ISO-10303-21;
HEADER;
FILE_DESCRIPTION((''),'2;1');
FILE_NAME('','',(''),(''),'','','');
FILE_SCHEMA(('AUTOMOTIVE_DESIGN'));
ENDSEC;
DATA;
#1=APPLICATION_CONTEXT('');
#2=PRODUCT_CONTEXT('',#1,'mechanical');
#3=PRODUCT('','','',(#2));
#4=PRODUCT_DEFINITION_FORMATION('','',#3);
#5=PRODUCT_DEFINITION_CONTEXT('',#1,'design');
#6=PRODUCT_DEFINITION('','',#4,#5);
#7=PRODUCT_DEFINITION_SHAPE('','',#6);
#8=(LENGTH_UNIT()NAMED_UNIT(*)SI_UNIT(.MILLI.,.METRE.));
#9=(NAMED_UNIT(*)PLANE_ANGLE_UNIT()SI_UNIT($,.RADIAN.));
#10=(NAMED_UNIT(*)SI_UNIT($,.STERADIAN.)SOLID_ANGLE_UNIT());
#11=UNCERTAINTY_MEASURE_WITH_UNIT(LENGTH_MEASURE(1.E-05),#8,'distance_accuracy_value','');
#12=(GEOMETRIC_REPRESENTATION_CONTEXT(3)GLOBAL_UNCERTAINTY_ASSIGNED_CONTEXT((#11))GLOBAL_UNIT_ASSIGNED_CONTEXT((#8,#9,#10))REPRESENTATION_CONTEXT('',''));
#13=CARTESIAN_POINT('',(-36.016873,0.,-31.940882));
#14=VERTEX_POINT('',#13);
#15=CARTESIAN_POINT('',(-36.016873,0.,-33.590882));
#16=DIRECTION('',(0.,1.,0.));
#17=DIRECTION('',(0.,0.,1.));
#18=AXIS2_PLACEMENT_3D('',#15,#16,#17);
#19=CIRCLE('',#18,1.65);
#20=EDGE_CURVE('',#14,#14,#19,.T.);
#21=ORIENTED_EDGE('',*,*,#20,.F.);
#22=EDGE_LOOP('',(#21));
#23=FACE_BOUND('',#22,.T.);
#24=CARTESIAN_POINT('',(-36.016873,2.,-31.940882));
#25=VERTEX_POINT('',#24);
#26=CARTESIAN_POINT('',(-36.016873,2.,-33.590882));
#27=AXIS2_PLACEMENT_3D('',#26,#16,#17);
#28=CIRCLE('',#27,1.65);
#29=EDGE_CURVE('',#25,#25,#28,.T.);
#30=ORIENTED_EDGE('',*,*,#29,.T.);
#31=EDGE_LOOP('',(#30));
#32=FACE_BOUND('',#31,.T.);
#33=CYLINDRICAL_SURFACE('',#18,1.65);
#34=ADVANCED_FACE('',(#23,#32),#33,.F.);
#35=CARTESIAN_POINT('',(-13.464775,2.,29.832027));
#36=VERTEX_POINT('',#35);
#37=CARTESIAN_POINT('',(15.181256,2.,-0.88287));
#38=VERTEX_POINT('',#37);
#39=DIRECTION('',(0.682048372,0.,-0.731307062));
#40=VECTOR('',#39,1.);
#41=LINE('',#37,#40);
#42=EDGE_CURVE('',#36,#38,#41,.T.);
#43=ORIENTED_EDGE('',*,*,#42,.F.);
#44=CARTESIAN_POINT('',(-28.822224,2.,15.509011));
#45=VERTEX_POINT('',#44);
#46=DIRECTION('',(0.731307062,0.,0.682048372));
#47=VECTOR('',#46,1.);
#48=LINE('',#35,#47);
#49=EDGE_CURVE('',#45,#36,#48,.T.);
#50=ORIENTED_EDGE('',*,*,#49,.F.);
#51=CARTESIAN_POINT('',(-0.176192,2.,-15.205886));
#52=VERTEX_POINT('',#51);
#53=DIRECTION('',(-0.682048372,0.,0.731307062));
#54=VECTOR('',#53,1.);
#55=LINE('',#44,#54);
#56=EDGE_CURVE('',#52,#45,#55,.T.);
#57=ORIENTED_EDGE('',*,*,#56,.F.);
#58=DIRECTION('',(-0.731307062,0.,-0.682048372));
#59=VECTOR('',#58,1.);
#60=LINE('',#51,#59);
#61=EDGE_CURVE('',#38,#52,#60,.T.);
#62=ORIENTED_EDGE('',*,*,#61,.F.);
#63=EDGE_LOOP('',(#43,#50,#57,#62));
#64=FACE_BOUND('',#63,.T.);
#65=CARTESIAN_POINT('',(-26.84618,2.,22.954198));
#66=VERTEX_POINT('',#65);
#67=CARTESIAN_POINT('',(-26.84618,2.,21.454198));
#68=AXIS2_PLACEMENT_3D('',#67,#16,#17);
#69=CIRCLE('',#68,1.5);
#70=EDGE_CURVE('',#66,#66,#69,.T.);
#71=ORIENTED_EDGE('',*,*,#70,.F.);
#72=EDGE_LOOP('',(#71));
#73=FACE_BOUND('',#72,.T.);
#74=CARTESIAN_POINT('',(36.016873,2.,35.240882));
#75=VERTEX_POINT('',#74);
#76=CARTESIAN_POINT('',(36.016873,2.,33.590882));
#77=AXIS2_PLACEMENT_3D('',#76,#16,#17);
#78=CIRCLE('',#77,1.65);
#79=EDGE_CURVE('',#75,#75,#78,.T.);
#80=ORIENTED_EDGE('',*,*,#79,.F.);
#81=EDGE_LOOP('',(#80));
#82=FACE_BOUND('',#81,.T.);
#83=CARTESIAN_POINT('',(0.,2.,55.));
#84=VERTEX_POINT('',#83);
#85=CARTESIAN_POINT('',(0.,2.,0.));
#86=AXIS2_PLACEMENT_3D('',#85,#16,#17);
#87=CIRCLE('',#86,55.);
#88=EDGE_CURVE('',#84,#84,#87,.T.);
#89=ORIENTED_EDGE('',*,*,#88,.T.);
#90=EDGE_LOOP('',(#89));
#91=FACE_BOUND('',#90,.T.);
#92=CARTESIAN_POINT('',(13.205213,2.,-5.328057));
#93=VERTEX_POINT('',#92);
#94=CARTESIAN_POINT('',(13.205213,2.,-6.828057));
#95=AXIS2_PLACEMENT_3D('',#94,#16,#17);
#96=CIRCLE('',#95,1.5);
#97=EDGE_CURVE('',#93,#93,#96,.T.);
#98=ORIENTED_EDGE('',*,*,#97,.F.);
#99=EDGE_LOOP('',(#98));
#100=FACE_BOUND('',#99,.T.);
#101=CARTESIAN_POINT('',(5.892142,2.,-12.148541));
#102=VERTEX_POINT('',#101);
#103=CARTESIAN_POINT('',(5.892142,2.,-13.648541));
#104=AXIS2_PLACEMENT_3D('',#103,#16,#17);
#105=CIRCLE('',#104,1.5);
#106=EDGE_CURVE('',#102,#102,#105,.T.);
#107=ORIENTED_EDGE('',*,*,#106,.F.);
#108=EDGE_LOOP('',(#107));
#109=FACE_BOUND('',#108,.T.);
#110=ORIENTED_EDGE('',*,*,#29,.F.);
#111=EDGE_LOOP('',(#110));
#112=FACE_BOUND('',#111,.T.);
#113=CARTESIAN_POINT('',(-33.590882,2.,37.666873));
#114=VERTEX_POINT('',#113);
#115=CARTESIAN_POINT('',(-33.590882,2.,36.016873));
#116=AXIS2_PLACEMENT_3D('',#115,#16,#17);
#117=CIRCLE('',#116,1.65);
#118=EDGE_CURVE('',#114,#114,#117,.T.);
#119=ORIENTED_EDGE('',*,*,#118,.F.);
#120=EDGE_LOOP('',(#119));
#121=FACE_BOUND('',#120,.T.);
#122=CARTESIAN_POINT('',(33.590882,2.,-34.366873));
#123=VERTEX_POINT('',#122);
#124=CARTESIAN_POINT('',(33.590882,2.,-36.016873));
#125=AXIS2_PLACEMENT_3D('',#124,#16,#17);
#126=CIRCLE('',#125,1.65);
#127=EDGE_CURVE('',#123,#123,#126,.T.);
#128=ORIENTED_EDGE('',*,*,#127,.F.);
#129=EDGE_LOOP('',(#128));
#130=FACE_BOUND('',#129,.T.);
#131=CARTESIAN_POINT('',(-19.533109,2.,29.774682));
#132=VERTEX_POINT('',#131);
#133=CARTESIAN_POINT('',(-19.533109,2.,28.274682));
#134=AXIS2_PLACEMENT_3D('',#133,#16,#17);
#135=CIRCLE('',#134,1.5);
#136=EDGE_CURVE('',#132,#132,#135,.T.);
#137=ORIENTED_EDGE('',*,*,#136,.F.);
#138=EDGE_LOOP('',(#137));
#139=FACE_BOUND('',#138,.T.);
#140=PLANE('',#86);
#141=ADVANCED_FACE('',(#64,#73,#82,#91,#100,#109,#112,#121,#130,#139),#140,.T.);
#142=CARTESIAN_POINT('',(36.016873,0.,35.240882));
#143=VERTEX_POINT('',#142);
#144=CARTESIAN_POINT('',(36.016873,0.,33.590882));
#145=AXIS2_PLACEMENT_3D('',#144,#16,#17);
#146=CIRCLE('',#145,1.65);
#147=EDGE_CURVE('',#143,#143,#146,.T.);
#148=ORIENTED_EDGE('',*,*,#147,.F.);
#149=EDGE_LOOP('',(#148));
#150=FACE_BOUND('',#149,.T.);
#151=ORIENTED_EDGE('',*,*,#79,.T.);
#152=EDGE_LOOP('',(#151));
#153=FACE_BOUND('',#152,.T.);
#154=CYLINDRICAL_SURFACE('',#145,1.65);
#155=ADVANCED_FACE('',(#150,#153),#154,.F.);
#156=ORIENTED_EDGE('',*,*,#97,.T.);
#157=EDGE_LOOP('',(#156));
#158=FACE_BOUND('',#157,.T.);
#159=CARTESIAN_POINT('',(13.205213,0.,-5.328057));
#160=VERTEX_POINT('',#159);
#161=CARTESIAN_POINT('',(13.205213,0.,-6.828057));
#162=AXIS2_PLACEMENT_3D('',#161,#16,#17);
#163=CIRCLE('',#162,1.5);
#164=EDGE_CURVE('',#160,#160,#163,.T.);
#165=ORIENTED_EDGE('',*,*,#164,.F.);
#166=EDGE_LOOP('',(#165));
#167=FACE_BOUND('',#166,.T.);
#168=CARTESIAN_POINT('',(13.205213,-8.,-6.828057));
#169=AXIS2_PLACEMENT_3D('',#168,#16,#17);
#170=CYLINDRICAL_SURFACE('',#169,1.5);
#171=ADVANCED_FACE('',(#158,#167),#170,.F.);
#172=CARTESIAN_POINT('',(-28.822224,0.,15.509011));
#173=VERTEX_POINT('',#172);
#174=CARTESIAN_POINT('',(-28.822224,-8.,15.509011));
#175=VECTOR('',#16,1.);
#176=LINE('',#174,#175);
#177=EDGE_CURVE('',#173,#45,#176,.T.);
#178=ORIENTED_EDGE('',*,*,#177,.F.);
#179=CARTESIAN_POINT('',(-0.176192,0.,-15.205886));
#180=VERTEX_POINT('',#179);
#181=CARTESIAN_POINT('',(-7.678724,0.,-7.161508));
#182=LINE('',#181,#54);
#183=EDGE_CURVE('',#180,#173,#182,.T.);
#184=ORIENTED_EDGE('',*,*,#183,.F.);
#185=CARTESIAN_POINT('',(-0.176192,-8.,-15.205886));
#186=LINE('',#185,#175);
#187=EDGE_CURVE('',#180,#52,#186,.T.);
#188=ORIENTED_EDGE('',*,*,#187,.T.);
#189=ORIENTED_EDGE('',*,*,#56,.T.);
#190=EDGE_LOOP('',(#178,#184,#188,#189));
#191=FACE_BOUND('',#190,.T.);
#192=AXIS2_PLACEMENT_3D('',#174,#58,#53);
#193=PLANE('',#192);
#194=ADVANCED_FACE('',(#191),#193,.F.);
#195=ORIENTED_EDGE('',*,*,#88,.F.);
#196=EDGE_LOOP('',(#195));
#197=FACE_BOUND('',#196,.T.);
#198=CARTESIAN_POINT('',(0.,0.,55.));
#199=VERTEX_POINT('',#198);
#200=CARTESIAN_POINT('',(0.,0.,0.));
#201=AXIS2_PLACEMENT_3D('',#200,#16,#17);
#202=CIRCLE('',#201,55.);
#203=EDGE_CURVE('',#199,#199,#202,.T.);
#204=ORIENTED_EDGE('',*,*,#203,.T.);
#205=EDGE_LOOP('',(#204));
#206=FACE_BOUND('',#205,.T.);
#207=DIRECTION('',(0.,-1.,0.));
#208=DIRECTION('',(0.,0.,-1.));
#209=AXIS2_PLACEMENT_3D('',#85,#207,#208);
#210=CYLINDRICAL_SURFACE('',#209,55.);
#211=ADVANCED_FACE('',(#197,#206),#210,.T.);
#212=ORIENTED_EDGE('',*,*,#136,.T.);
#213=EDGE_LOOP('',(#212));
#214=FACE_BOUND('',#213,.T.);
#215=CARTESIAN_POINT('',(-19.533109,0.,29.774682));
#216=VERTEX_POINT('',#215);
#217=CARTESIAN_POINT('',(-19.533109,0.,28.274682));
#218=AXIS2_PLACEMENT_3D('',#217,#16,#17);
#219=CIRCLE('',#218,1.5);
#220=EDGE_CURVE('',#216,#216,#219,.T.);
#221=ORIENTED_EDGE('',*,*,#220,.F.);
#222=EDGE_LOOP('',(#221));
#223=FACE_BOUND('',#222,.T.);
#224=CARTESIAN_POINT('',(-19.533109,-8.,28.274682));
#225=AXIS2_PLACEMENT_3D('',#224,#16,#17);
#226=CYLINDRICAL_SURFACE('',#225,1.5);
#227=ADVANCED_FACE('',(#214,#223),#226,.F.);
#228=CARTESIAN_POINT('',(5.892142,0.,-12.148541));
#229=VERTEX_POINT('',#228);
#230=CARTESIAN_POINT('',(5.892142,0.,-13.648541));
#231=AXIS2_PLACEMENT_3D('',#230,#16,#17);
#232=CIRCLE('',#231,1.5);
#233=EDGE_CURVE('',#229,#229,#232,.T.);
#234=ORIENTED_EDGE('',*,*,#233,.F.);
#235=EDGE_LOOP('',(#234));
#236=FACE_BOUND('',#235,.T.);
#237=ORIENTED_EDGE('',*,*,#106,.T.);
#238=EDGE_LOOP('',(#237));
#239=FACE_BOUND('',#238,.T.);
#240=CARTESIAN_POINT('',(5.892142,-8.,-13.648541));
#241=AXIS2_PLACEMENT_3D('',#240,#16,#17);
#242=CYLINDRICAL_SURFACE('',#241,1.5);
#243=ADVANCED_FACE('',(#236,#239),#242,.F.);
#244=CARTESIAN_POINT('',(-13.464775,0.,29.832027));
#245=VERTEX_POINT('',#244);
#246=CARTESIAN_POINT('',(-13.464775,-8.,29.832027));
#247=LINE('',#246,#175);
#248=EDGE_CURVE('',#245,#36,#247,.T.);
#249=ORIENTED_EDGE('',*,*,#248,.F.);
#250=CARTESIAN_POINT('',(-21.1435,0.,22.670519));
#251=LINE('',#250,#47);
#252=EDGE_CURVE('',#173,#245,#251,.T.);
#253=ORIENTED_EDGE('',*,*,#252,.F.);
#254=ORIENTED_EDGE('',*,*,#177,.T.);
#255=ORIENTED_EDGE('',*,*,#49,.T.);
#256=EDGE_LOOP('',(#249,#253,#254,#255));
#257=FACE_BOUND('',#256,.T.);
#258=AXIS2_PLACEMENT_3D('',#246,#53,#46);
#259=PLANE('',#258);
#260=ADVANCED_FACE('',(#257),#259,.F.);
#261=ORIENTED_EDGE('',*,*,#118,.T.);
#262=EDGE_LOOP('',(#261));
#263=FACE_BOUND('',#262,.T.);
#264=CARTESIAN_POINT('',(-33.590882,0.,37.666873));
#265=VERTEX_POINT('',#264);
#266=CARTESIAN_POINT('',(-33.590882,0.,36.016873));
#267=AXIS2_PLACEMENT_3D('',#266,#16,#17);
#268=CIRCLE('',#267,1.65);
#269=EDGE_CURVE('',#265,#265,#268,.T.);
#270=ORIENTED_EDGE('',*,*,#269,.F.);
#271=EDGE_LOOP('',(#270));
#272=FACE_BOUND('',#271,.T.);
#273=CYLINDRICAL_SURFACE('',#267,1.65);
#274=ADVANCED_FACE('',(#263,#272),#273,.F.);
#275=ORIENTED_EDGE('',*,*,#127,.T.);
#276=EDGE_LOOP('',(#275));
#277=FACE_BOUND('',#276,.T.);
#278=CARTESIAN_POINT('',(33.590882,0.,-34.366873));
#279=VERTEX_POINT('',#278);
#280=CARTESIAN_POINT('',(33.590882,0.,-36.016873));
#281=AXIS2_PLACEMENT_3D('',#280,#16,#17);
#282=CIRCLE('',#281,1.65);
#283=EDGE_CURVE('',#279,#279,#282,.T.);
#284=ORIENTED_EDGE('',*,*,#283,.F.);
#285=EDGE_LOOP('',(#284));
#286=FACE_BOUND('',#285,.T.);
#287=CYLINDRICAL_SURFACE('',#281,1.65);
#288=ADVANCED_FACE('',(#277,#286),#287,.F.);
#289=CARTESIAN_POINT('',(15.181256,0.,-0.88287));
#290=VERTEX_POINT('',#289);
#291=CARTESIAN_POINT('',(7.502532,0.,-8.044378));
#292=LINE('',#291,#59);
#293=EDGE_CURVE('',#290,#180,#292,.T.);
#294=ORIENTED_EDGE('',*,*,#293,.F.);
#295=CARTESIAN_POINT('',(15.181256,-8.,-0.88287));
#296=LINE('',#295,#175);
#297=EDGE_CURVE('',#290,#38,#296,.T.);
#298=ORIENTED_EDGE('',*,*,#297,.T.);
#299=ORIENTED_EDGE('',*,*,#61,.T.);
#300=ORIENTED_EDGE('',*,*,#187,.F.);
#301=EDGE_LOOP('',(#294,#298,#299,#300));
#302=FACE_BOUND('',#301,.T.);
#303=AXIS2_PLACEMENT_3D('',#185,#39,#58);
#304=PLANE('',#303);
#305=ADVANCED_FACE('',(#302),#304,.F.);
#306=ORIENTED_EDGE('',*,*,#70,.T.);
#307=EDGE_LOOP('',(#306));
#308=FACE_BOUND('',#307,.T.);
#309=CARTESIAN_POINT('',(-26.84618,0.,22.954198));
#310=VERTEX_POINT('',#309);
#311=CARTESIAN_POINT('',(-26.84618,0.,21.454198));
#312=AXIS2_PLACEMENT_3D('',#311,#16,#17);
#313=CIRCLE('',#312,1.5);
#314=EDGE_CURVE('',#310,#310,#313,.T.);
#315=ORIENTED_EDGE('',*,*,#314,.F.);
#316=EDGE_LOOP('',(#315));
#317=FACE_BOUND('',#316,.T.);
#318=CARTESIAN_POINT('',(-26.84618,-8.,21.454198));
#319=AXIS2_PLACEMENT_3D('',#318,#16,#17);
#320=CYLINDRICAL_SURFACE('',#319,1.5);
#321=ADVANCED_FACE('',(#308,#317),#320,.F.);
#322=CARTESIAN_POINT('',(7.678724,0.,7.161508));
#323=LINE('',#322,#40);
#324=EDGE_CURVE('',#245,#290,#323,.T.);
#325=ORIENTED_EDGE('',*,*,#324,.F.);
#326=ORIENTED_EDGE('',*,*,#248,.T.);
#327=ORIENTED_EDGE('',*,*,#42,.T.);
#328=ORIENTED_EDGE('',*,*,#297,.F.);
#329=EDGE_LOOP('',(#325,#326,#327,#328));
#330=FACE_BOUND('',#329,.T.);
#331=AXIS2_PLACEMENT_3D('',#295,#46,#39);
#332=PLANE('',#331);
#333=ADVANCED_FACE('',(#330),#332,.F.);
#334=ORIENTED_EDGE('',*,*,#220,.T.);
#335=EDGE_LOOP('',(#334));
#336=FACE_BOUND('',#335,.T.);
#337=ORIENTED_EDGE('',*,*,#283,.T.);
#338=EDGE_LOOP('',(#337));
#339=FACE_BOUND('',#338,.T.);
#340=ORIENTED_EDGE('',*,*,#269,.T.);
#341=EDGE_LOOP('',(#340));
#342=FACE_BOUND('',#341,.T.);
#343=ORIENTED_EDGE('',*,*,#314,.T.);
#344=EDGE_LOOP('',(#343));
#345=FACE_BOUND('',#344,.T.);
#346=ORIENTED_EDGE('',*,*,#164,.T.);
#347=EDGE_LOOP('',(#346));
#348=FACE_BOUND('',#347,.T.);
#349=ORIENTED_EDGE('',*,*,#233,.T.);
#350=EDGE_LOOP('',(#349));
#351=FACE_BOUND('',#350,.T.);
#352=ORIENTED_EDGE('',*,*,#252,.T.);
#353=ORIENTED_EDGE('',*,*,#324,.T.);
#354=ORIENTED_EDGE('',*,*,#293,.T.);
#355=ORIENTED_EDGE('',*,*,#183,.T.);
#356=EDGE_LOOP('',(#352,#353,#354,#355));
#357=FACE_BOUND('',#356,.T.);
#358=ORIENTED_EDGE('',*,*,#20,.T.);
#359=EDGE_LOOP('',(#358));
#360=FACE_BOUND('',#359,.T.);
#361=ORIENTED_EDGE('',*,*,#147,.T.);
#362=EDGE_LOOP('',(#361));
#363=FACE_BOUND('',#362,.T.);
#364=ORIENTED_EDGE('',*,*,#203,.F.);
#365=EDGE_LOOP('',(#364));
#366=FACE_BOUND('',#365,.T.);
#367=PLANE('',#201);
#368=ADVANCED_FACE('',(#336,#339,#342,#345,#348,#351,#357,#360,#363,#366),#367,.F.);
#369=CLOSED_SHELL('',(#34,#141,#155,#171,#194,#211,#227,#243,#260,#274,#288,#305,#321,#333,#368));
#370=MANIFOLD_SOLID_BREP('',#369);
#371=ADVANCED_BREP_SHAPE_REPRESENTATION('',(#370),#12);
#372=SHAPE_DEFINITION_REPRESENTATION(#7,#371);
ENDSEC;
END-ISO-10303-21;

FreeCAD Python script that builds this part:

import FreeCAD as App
import Part
import Sketcher
from FreeCAD import Vector


def add_polygon(sketch, points):
    """Adds a closed chain of lines whose ends are joined by coincident constraints."""
    first, n = sketch.GeometryCount, len(points)
    for a, b in zip(points, points[1:] + points[:1]):
        sketch.addGeometry(Part.LineSegment(App.Vector(*a, 0), App.Vector(*b, 0)), False)
    for i in range(n):
        sketch.addConstraint(Sketcher.Constraint("Coincident", first + i, 2, first + (i + 1) % n, 1))

doc = App.newDocument("Part")
params = doc.addObject("Spreadsheet::Sheet", "Params")
for row, (alias, value) in enumerate([
    ("sketch1_diameter", "110 mm"),
    ("pad1_length", "2 mm"),
    ("sketch2_diameter", "3.3 mm"),
    ("pocket1_length", "2 mm"),
    ("sketch3_diameter", "3.3 mm"),
    ("pocket2_length", "2 mm"),
    ("sketch4_diameter", "3 mm"),
    ("sketch4_length", "42 mm"),
    ("sketch4_length2", "21 mm"),
    ("pocket3_length", "10 mm"),
], start=1):
    params.set(f"A{row}", alias)
    params.set(f"B{row}", "=" + value)
    params.setAlias(f"B{row}", alias)

body = doc.addObject("PartDesign::Body", "Body")

# Sketch on XZ plane
sketch1 = body.newObject("Sketcher::SketchObject", "Sketch")
sketch1.AttachmentSupport = (doc.getObject("XZ_Plane"), [""])
sketch1.MapMode = "FlatFace"
sketch1.addGeometry(Part.Circle(Vector(0, 0, 0), Vector(0, 0, 1), 55), False)
sketch1.addConstraint(Sketcher.Constraint("Coincident", 0, 3, -1, 1))
sketch1.addConstraint(Sketcher.Constraint("Diameter", 0, 110.0))
sketch1.setExpression("Constraints[1]", "Params.sketch1_diameter")
pad1 = body.newObject("PartDesign::Pad", "Pad")
pad1.Profile = sketch1
pad1.setExpression("Length", "Params.pad1_length")
pad1.Reversed = True

# Sketch on XZ plane
sketch2 = body.newObject("Sketcher::SketchObject", "Sketch001")
sketch2.AttachmentSupport = (doc.getObject("XZ_Plane"), [""])
sketch2.MapMode = "FlatFace"
sketch2.AttachmentOffset = App.Placement(Vector(0, 0, -2), App.Rotation())
sketch2.addGeometry(Part.Circle(Vector(36, 33.6, 0), Vector(0, 0, 1), 1.6), False)
sketch2.addConstraint(Sketcher.Constraint("Diameter", 0, 3.3))
sketch2.addConstraint(Sketcher.Constraint("DistanceX", -1, 1, 0, 3, 36.016873))
sketch2.addConstraint(Sketcher.Constraint("DistanceY", -1, 1, 0, 3, 33.590882))
sketch2.setExpression("Constraints[0]", "Params.sketch2_diameter")
pocket1 = body.newObject("PartDesign::Pocket", "Pocket")
pocket1.Profile = sketch2
pocket1.setExpression("Length", "Params.pocket1_length")
pocket1.Reversed = True

# Sketch on XZ plane
sketch3 = body.newObject("Sketcher::SketchObject", "Sketch002")
sketch3.AttachmentSupport = (doc.getObject("XZ_Plane"), [""])
sketch3.MapMode = "FlatFace"
sketch3.AttachmentOffset = App.Placement(Vector(0, 0, -2), App.Rotation())
sketch3.addGeometry(Part.Circle(Vector(-36, -33.6, 0), Vector(0, 0, 1), 1.6), False)
sketch3.addGeometry(Part.Circle(Vector(33.6, -36, 0), Vector(0, 0, 1), 1.6), False)
sketch3.addGeometry(Part.Circle(Vector(-33.6, 36, 0), Vector(0, 0, 1), 1.6), False)
sketch3.addConstraint(Sketcher.Constraint("Equal", 0, 1))
sketch3.addConstraint(Sketcher.Constraint("Equal", 1, 2))
sketch3.addConstraint(Sketcher.Constraint("Symmetric", 1, 3, 2, 3, -1, 1))
sketch3.addConstraint(Sketcher.Constraint("Diameter", 0, 3.3))
sketch3.addConstraint(Sketcher.Constraint("DistanceY", 1, 3, 0, 3, 2.42599))
sketch3.addConstraint(Sketcher.Constraint("DistanceX", 0, 3, 2, 3, 2.42599))
sketch3.addConstraint(Sketcher.Constraint("DistanceX", 0, 3, -1, 1, 36.016873))
sketch3.addConstraint(Sketcher.Constraint("DistanceY", 0, 3, -1, 1, 33.590882))
sketch3.setExpression("Constraints[3]", "Params.sketch3_diameter")
pocket2 = body.newObject("PartDesign::Pocket", "Pocket001")
pocket2.Profile = sketch3
pocket2.setExpression("Length", "Params.pocket2_length")
pocket2.Reversed = True

# Sketch on XZ plane
sketch4 = body.newObject("Sketcher::SketchObject", "Sketch003")
sketch4.AttachmentSupport = (doc.getObject("XZ_Plane"), [""])
sketch4.MapMode = "FlatFace"
sketch4.AttachmentOffset = App.Placement(Vector(0, 0, -2), App.Rotation())
sketch4.addGeometry(Part.Circle(Vector(-26.8, 21.5, 0), Vector(0, 0, 1), 1.5), False)  # 0
sketch4.addGeometry(Part.Circle(Vector(-19.5, 28.3, 0), Vector(0, 0, 1), 1.5), False)  # 1
sketch4.addGeometry(Part.Circle(Vector(5.9, -13.6, 0), Vector(0, 0, 1), 1.5), False)  # 2
sketch4.addGeometry(Part.Circle(Vector(13.2, -6.8, 0), Vector(0, 0, 1), 1.5), False)  # 3
add_polygon(sketch4, [(-0.2, -15.2), (-28.8, 15.5), (-13.5, 29.8), (15.2, -0.9)])  # lines 4-7
sketch4.addConstraint(Sketcher.Constraint("Equal", 0, 1))
sketch4.addConstraint(Sketcher.Constraint("Equal", 1, 2))
sketch4.addConstraint(Sketcher.Constraint("Equal", 2, 3))
sketch4.addConstraint(Sketcher.Constraint("Perpendicular", 4, 5))
sketch4.addConstraint(Sketcher.Constraint("Perpendicular", 5, 6))
sketch4.addConstraint(Sketcher.Constraint("Perpendicular", 6, 7))
sketch4.addConstraint(Sketcher.Constraint("Diameter", 0, 3.0))
sketch4.addConstraint(Sketcher.Constraint("Distance", 4, 42.0))
sketch4.addConstraint(Sketcher.Constraint("Distance", 5, 21.0))
sketch4.addConstraint(Sketcher.Constraint("DistanceY", -1, 1, 0, 3, 21.454198))
sketch4.addConstraint(Sketcher.Constraint("DistanceX", 0, 3, -1, 1, 26.84618))
sketch4.addConstraint(Sketcher.Constraint("DistanceX", 1, 3, -1, 1, 19.533109))
sketch4.addConstraint(Sketcher.Constraint("DistanceY", -1, 1, 1, 3, 28.274682))
sketch4.addConstraint(Sketcher.Constraint("DistanceX", -1, 1, 2, 3, 5.892142))
sketch4.addConstraint(Sketcher.Constraint("DistanceY", 2, 3, -1, 1, 13.648541))
sketch4.addConstraint(Sketcher.Constraint("DistanceY", -1, 1, 4, 2, 15.509011))
sketch4.addConstraint(Sketcher.Constraint("DistanceY", 6, 2, -1, 1, 0.88287))
sketch4.addConstraint(Sketcher.Constraint("DistanceX", 2, 3, 3, 3, 7.313071))
sketch4.addConstraint(Sketcher.Constraint("DistanceY", 3, 3, 1, 3, 35.102739))
sketch4.addConstraint(Sketcher.Constraint("DistanceX", 4, 2, -1, 1, 28.822224))
sketch4.setExpression("Constraints[10]", "Params.sketch4_diameter")
sketch4.setExpression("Constraints[11]", "Params.sketch4_length")
sketch4.setExpression("Constraints[12]", "Params.sketch4_length2")
pocket3 = body.newObject("PartDesign::Pocket", "Pocket002")
pocket3.Profile = sketch4
pocket3.setExpression("Length", "Params.pocket3_length")
pocket3.Reversed = True

doc.recompute()
